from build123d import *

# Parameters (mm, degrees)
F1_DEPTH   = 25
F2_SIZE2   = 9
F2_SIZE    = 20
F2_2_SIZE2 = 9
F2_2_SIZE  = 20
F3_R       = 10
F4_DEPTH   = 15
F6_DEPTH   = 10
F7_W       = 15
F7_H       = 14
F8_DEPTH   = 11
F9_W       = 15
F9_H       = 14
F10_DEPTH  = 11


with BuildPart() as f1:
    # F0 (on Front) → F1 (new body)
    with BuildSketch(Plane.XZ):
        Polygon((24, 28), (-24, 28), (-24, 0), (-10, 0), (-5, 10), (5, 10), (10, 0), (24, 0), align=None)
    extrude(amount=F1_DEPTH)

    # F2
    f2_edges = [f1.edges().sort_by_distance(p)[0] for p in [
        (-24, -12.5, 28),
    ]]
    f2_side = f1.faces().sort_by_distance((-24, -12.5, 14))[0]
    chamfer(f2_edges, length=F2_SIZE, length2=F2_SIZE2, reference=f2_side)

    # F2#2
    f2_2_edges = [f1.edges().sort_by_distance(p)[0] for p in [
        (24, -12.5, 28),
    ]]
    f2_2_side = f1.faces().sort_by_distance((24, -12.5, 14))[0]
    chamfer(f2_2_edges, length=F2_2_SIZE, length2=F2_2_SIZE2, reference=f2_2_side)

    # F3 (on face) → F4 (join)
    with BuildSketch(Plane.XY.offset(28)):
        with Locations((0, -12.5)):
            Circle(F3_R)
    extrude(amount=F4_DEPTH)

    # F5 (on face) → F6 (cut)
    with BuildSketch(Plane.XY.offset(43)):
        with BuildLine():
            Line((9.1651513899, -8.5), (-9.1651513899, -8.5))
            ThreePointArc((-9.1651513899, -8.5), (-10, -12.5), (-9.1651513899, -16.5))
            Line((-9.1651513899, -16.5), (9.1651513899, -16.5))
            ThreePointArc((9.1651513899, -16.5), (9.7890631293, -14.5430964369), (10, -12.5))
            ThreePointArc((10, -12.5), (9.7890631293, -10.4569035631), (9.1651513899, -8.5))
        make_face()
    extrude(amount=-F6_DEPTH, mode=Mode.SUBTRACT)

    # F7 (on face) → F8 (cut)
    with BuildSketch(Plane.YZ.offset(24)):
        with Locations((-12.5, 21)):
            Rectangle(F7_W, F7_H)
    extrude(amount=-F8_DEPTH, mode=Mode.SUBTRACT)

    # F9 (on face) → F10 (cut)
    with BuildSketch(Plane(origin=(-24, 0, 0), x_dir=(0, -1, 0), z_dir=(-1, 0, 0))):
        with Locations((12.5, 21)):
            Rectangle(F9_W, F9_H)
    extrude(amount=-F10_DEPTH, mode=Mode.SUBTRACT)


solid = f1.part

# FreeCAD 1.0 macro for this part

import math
import FreeCAD as App
import Part
import Sketcher


def edges_at(feature, points):
    """Names of the edges that pass closest to the given points."""
    edges = feature.Shape.Edges
    near = lambda p: min(range(len(edges)), key=lambda i: edges[i].distToShape(Part.Vertex(*p))[0])
    return sorted({f"Edge{near(p) + 1}" for p in points})

doc = App.newDocument("Part")
params = doc.addObject("Spreadsheet::Sheet", "Params")
for row, (alias, value) in enumerate([
    ("sketch1_width", "48 mm"),
    ("sketch1_width2", "14 mm"),
    ("sketch1_width3", "10 mm"),
    ("sketch1_height", "28 mm"),
    ("pad1_length", "25 mm"),
    ("chamfer_size", "20 mm"),
    ("chamfer_size2", "9 mm"),
    ("chamfer2_size", "20 mm"),
    ("chamfer2_size2", "9 mm"),
    ("sketch2_diameter", "20 mm"),
    ("pad2_length", "15 mm"),
    ("sketch3_radius", "10 mm"),
    ("pocket1_length", "10 mm"),
    ("sketch4_width", "15 mm"),
    ("sketch4_height", "14 mm"),
    ("pocket2_length", "11 mm"),
    ("sketch5_width", "15 mm"),
    ("sketch5_height", "14 mm"),
    ("pocket3_length", "11 mm"),
], start=1):
    params.set(f"A{row}", alias)
    params.set(f"B{row}", "=" + value)
    params.setAlias(f"B{row}", alias)

body = doc.addObject("PartDesign::Body", "Body")

# Sketch on XZ plane
sketch1 = body.newObject("Sketcher::SketchObject", "Sketch")
sketch1.AttachmentSupport = (doc.getObject("XZ_Plane"), [""])
sketch1.MapMode = "FlatFace"
sketch1.addGeometry([
    Part.LineSegment(App.Vector(24, 28, 0), App.Vector(-24, 28, 0)),  # 0
    Part.LineSegment(App.Vector(-24, 28, 0), App.Vector(-24, 0, 0)),  # 1
    Part.LineSegment(App.Vector(-24, 0, 0), App.Vector(-10, 0, 0)),  # 2
    Part.LineSegment(App.Vector(-10, 0, 0), App.Vector(-5, 10, 0)),  # 3
    Part.LineSegment(App.Vector(-5, 10, 0), App.Vector(5, 10, 0)),  # 4
    Part.LineSegment(App.Vector(5, 10, 0), App.Vector(10, 0, 0)),  # 5
    Part.LineSegment(App.Vector(10, 0, 0), App.Vector(24, 0, 0)),  # 6
    Part.LineSegment(App.Vector(24, 0, 0), App.Vector(24, 28, 0)),  # 7
], False)
sketch1.addConstraint([
    Sketcher.Constraint("Coincident", 0, 2, 1, 1),
    Sketcher.Constraint("Coincident", 1, 2, 2, 1),
    Sketcher.Constraint("Coincident", 2, 2, 3, 1),
    Sketcher.Constraint("Coincident", 3, 2, 4, 1),
    Sketcher.Constraint("Coincident", 4, 2, 5, 1),
    Sketcher.Constraint("Coincident", 5, 2, 6, 1),
    Sketcher.Constraint("Coincident", 6, 2, 7, 1),
    Sketcher.Constraint("Coincident", 7, 2, 0, 1),
    Sketcher.Constraint("Horizontal", 0),
    Sketcher.Constraint("Vertical", 1),
    Sketcher.Constraint("Horizontal", 2),
    Sketcher.Constraint("Horizontal", 4),
    Sketcher.Constraint("Horizontal", 6),
    Sketcher.Constraint("Vertical", 7),
    Sketcher.Constraint("Symmetric", 2, 2, 5, 2, -1, 1),
    Sketcher.Constraint("Symmetric", 1, 2, 6, 2, -2),
    Sketcher.Constraint("Equal", 3, 5),
    Sketcher.Constraint("DistanceX", 0, 2, 0, 1, 48.0),
    Sketcher.Constraint("DistanceX", 2, 1, 2, 2, 14.0),
    Sketcher.Constraint("DistanceX", 4, 1, 4, 2, 10.0),
    Sketcher.Constraint("DistanceY", 1, 2, 1, 1, 28.0),
    Sketcher.Constraint("DistanceY", -1, 1, 3, 2, 10.0),
])
sketch1.setExpression("Constraints[17]", "Params.sketch1_width")
sketch1.setExpression("Constraints[18]", "Params.sketch1_width2")
sketch1.setExpression("Constraints[19]", "Params.sketch1_width3")
sketch1.setExpression("Constraints[20]", "Params.sketch1_height")
pad1 = body.newObject("PartDesign::Pad", "Pad")
pad1.Profile = sketch1
pad1.setExpression("Length", "Params.pad1_length")
doc.recompute()

chamfer = body.newObject("PartDesign::Chamfer", "Chamfer")
chamfer.Base = (pad1, edges_at(pad1, [(-24, -12.5, 28)]))
chamfer.ChamferType = "Two distances"
chamfer.setExpression("Size", "Params.chamfer_size")
chamfer.setExpression("Size2", "Params.chamfer_size2")
chamfer.FlipDirection = True
doc.recompute()

chamfer2 = body.newObject("PartDesign::Chamfer", "Chamfer001")
chamfer2.Base = (chamfer, edges_at(chamfer, [(24, -12.5, 28)]))
chamfer2.ChamferType = "Two distances"
chamfer2.setExpression("Size", "Params.chamfer2_size")
chamfer2.setExpression("Size2", "Params.chamfer2_size2")
chamfer2.FlipDirection = True

# Sketch on XY plane
sketch2 = body.newObject("Sketcher::SketchObject", "Sketch001")
sketch2.AttachmentSupport = (doc.getObject("XY_Plane"), [""])
sketch2.MapMode = "FlatFace"
sketch2.AttachmentOffset = App.Placement(App.Vector(0, 0, 28), App.Rotation())
sketch2.addGeometry(Part.Circle(App.Vector(0, -12.5, 0), App.Vector(0, 0, 1), 10), False)
sketch2.addConstraint([
    Sketcher.Constraint("PointOnObject", 0, 3, -2),
    Sketcher.Constraint("Diameter", 0, 20.0),
    Sketcher.Constraint("DistanceY", 0, 3, -1, 1, 12.5),
])
sketch2.setExpression("Constraints[1]", "Params.sketch2_diameter")
pad2 = body.newObject("PartDesign::Pad", "Pad001")
pad2.Profile = sketch2
pad2.setExpression("Length", "Params.pad2_length")

# Sketch on XY plane
sketch3 = body.newObject("Sketcher::SketchObject", "Sketch002")
sketch3.AttachmentSupport = (doc.getObject("XY_Plane"), [""])
sketch3.MapMode = "FlatFace"
sketch3.AttachmentOffset = App.Placement(App.Vector(0, 0, 43), App.Rotation())
sketch3.addGeometry([
    Part.LineSegment(App.Vector(9.165151, -8.5, 0), App.Vector(-9.165151, -8.5, 0)),  # 0
    Part.ArcOfCircle(Part.Circle(App.Vector(0, -12.5, 0), App.Vector(0, 0, 1), 10), math.radians(156.421822), math.radians(203.578178)),  # 1
    Part.LineSegment(App.Vector(-9.165151, -16.5, 0), App.Vector(9.165151, -16.5, 0)),  # 2
    Part.ArcOfCircle(Part.Circle(App.Vector(0, -12.5, 0), App.Vector(0, 0, 1), 10), math.radians(-23.578178), math.radians(0)),  # 3
    Part.ArcOfCircle(Part.Circle(App.Vector(0, -12.5, 0), App.Vector(0, 0, 1), 10), math.radians(0), math.radians(23.578178)),  # 4
], False)
sketch3.addConstraint([
    Sketcher.Constraint("Coincident", 0, 2, 1, 1),
    Sketcher.Constraint("Coincident", 1, 2, 2, 1),
    Sketcher.Constraint("Coincident", 2, 2, 3, 1),
    Sketcher.Constraint("Tangent", 3, 2, 4, 1),
    Sketcher.Constraint("Coincident", 4, 2, 0, 1),
    Sketcher.Constraint("Horizontal", 0),
    Sketcher.Constraint("Horizontal", 2),
    Sketcher.Constraint("Coincident", 3, 3, 1, 3),
    Sketcher.Constraint("Equal", 1, 3),
    Sketcher.Constraint("Equal", 3, 4),
    Sketcher.Constraint("PointOnObject", 1, 3, -2),
    Sketcher.Constraint("Horizontal", 4, 3, 3, 2),
    Sketcher.Constraint("Vertical", 0, 2, 1, 2),
    Sketcher.Constraint("Radius", 1, 10.0),
    Sketcher.Constraint("DistanceY", 1, 3, 0, 2, 4.0),
    Sketcher.Constraint("DistanceY", 1, 3, -1, 1, 12.5),
])
sketch3.setExpression("Constraints[13]", "Params.sketch3_radius")
pocket1 = body.newObject("PartDesign::Pocket", "Pocket")
pocket1.Profile = sketch3
pocket1.setExpression("Length", "Params.pocket1_length")

# Sketch on YZ plane
sketch4 = body.newObject("Sketcher::SketchObject", "Sketch003")
sketch4.AttachmentSupport = (doc.getObject("YZ_Plane"), [""])
sketch4.MapMode = "FlatFace"
sketch4.AttachmentOffset = App.Placement(App.Vector(0, 0, 24), App.Rotation())
sketch4.addGeometry([
    Part.LineSegment(App.Vector(-20, 28, 0), App.Vector(-20, 14, 0)),
    Part.LineSegment(App.Vector(-20, 14, 0), App.Vector(-5, 14, 0)),
    Part.LineSegment(App.Vector(-5, 14, 0), App.Vector(-5, 28, 0)),
    Part.LineSegment(App.Vector(-5, 28, 0), App.Vector(-20, 28, 0)),
], False)
sketch4.addConstraint([
    Sketcher.Constraint("Coincident", 0, 2, 1, 1),
    Sketcher.Constraint("Coincident", 1, 2, 2, 1),
    Sketcher.Constraint("Coincident", 2, 2, 3, 1),
    Sketcher.Constraint("Coincident", 3, 2, 0, 1),
    Sketcher.Constraint("Vertical", 0),
    Sketcher.Constraint("Horizontal", 1),
    Sketcher.Constraint("Vertical", 2),
    Sketcher.Constraint("Horizontal", 3),
    Sketcher.Constraint("DistanceX", 1, 1, 1, 2, 15.0),
    Sketcher.Constraint("DistanceY", 0, 2, 0, 1, 14.0),
    Sketcher.Constraint("DistanceX", 0, 2, -1, 1, 20.0),
    Sketcher.Constraint("DistanceY", -1, 1, 0, 2, 14.0),
])
sketch4.setExpression("Constraints[8]", "Params.sketch4_width")
sketch4.setExpression("Constraints[9]", "Params.sketch4_height")
pocket2 = body.newObject("PartDesign::Pocket", "Pocket001")
pocket2.Profile = sketch4
pocket2.setExpression("Length", "Params.pocket2_length")

# Sketch on YZ plane
sketch5 = body.newObject("Sketcher::SketchObject", "Sketch004")
sketch5.AttachmentSupport = (doc.getObject("YZ_Plane"), [""])
sketch5.MapMode = "FlatFace"
sketch5.AttachmentOffset = App.Placement(App.Vector(0, 0, -24), App.Rotation())
sketch5.addGeometry([
    Part.LineSegment(App.Vector(-5, 28, 0), App.Vector(-5, 14, 0)),
    Part.LineSegment(App.Vector(-5, 14, 0), App.Vector(-20, 14, 0)),
    Part.LineSegment(App.Vector(-20, 14, 0), App.Vector(-20, 28, 0)),
    Part.LineSegment(App.Vector(-20, 28, 0), App.Vector(-5, 28, 0)),
], False)
sketch5.addConstraint([
    Sketcher.Constraint("Coincident", 0, 2, 1, 1),
    Sketcher.Constraint("Coincident", 1, 2, 2, 1),
    Sketcher.Constraint("Coincident", 2, 2, 3, 1),
    Sketcher.Constraint("Coincident", 3, 2, 0, 1),
    Sketcher.Constraint("Vertical", 0),
    Sketcher.Constraint("Horizontal", 1),
    Sketcher.Constraint("Vertical", 2),
    Sketcher.Constraint("Horizontal", 3),
    Sketcher.Constraint("DistanceX", 1, 2, 1, 1, 15.0),
    Sketcher.Constraint("DistanceY", 0, 2, 0, 1, 14.0),
    Sketcher.Constraint("DistanceX", 0, 2, -1, 1, 5.0),
    Sketcher.Constraint("DistanceY", -1, 1, 0, 2, 14.0),
])
sketch5.setExpression("Constraints[8]", "Params.sketch5_width")
sketch5.setExpression("Constraints[9]", "Params.sketch5_height")
pocket3 = body.newObject("PartDesign::Pocket", "Pocket002")
pocket3.Profile = sketch5
pocket3.setExpression("Length", "Params.pocket3_length")
pocket3.Reversed = True

doc.recompute()
